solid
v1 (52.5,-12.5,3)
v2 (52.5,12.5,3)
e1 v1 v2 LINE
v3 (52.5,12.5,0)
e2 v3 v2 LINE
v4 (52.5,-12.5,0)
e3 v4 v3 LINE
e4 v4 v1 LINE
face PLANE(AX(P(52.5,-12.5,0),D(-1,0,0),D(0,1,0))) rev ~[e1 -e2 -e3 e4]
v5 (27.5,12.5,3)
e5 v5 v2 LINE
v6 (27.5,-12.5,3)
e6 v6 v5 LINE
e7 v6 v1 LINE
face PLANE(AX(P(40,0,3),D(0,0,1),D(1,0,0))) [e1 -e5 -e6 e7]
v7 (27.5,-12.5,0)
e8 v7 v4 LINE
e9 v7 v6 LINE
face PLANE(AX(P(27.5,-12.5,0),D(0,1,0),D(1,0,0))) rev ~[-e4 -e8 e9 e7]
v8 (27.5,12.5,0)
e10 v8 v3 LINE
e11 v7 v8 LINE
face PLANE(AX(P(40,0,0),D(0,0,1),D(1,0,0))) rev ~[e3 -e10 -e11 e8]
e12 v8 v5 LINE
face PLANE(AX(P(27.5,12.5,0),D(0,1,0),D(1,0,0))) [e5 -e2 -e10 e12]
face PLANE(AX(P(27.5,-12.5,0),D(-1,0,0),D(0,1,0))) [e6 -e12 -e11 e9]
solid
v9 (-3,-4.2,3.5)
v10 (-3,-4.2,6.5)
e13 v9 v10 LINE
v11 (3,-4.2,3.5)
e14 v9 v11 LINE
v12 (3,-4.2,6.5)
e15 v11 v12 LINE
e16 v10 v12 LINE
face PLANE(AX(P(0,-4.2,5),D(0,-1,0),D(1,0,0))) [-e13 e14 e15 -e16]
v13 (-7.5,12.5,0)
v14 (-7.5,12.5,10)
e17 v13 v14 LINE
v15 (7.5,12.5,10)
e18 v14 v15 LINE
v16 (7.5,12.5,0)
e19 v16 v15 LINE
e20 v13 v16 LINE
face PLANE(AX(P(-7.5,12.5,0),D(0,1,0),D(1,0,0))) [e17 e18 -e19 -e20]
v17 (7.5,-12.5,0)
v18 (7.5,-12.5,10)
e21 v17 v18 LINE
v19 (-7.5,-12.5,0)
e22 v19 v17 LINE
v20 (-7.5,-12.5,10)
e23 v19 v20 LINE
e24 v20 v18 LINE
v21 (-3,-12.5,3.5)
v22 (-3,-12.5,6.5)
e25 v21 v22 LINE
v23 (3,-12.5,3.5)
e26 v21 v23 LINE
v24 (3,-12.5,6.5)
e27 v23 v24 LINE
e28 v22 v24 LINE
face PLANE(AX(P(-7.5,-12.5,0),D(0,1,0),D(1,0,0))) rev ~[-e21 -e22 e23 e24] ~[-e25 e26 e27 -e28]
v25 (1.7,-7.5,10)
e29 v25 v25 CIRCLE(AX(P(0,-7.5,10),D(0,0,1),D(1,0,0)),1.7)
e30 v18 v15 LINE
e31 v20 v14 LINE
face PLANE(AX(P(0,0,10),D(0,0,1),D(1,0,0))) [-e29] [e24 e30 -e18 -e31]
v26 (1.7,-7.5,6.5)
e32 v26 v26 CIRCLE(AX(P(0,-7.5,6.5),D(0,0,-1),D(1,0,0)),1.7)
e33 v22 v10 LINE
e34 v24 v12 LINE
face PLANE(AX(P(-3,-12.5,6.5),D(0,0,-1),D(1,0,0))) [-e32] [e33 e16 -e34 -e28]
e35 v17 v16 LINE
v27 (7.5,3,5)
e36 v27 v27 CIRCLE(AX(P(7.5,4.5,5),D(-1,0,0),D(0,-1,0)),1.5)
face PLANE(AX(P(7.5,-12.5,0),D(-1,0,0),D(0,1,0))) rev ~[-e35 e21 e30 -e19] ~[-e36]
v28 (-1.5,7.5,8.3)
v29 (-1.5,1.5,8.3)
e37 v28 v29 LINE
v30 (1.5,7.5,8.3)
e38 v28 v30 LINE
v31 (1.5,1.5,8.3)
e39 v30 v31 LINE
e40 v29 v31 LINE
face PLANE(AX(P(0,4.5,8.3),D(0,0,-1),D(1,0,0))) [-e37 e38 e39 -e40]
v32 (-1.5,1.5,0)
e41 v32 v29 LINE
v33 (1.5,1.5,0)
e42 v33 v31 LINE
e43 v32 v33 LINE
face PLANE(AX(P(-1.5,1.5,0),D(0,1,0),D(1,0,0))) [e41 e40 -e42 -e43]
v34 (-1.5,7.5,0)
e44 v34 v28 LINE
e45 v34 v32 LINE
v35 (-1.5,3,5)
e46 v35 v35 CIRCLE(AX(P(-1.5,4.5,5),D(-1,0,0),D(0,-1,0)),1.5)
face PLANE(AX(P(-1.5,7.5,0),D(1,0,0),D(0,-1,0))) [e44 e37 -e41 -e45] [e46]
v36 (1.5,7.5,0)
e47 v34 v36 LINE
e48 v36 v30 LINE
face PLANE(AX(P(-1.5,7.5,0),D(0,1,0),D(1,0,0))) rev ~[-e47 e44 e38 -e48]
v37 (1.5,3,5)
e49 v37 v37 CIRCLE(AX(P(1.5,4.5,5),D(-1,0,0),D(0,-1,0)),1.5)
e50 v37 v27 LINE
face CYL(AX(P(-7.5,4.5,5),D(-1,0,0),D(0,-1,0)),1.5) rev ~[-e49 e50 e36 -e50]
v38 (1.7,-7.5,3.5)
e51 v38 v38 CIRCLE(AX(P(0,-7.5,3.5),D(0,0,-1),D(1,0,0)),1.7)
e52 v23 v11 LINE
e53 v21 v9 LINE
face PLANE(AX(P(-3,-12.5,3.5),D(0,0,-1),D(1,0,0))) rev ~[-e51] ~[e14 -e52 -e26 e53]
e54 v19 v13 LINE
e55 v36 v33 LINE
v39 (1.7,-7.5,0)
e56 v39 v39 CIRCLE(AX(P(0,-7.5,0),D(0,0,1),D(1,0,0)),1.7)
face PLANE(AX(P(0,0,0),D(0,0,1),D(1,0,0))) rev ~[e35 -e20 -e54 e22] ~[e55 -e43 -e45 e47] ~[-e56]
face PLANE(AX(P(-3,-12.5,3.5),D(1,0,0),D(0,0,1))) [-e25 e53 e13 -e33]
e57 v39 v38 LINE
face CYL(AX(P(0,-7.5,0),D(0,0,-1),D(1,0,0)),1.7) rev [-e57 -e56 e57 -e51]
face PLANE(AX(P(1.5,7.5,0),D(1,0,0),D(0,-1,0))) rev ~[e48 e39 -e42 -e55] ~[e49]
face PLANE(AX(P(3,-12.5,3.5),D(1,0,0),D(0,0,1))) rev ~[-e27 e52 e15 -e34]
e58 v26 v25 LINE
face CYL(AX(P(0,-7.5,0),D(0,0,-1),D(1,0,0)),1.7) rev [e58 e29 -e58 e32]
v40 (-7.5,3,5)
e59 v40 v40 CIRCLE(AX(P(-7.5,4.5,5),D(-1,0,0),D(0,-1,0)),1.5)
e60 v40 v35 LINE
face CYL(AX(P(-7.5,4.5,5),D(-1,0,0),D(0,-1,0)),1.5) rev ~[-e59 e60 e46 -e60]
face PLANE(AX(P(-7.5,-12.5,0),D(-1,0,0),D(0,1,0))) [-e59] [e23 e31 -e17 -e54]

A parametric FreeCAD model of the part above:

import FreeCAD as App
import Part
import Sketcher

V = App.Vector


def add_polygon(sketch, points):
    """Adds a closed chain of lines whose ends are joined by coincident constraints."""
    first, n = sketch.GeometryCount, len(points)
    for a, b in zip(points, points[1:] + points[:1]):
        sketch.addGeometry(Part.LineSegment(App.Vector(*a, 0), App.Vector(*b, 0)), False)
    for i in range(n):
        sketch.addConstraint(Sketcher.Constraint("Coincident", first + i, 2, first + (i + 1) % n, 1))

doc = App.newDocument("Part")
body = doc.addObject("PartDesign::Body", "Body")

sketch1 = body.newObject("Sketcher::SketchObject", "Sketch")
sketch1.AttachmentSupport = (doc.getObject("XY_Plane"), [""])
sketch1.MapMode = "FlatFace"
add_polygon(sketch1, [(-7.5, 12.5), (-7.5, -12.5), (7.5, -12.5), (7.5, 12.5)])
sketch1.addGeometry(Part.Circle(V(0, -7.5, 0), V(0, 0, 1), 1.7), False)
sketch1.addConstraint([
    Sketcher.Constraint("Vertical", 0),
    Sketcher.Constraint("Horizontal", 1),
    Sketcher.Constraint("Vertical", 2),
    Sketcher.Constraint("Horizontal", 3),
    Sketcher.Constraint("Symmetric", 0, 2, 2, 2, -1, 1),
    Sketcher.Constraint("PointOnObject", 4, 3, -2),
    Sketcher.Constraint("Diameter", 4, 3.4),
    Sketcher.Constraint("DistanceX", 1, 1, 1, 2, 15.0),
    Sketcher.Constraint("DistanceY", 0, 2, 0, 1, 25.0),
    Sketcher.Constraint("DistanceY", 0, 2, 4, 3, 5.0),
])
pad1 = body.newObject("PartDesign::Pad", "Pad")
pad1.Profile = sketch1
pad1.Length = 10

sketch2 = body.newObject("Sketcher::SketchObject", "Sketch001")
sketch2.AttachmentSupport = (doc.getObject("XZ_Plane"), [""])
sketch2.MapMode = "FlatFace"
sketch2.AttachmentOffset = App.Placement(V(0, 0, 12.5), App.Rotation())
add_polygon(sketch2, [(-3, 6.5), (-3, 3.5), (3, 3.5), (3, 6.5)])
sketch2.addConstraint([
    Sketcher.Constraint("Vertical", 0),
    Sketcher.Constraint("Horizontal", 1),
    Sketcher.Constraint("Vertical", 2),
    Sketcher.Constraint("Horizontal", 3),
    Sketcher.Constraint("DistanceX", 1, 1, 1, 2, 6.0),
    Sketcher.Constraint("DistanceY", 0, 2, 0, 1, 3.0),
    Sketcher.Constraint("DistanceX", 0, 2, -1, 1, 3.0),
    Sketcher.Constraint("DistanceY", -1, 1, 0, 2, 3.5),
])
pocket1 = body.newObject("PartDesign::Pocket", "Pocket")
pocket1.Profile = sketch2
pocket1.Length = 8.3

sketch3 = body.newObject("Sketcher::SketchObject", "Sketch002")
sketch3.AttachmentSupport = (doc.getObject("YZ_Plane"), [""])
sketch3.MapMode = "FlatFace"
sketch3.AttachmentOffset = App.Placement(V(0, 0, -7.5), App.Rotation())
sketch3.addGeometry(Part.Circle(V(4.5, 5, 0), V(0, 0, 1), 1.5), False)
sketch3.addConstraint([
    Sketcher.Constraint("Diameter", 0, 3.0),
    Sketcher.Constraint("DistanceY", -1, 1, 0, 3, 5.0),
    Sketcher.Constraint("DistanceX", -1, 1, 0, 3, 4.5),
])
pocket2 = body.newObject("PartDesign::Pocket", "Pocket001")
pocket2.Profile = sketch3
pocket2.Type = "ThroughAll"
pocket2.Reversed = True

sketch4 = body.newObject("Sketcher::SketchObject", "Sketch003")
sketch4.AttachmentSupport = (doc.getObject("XY_Plane"), [""])
sketch4.MapMode = "FlatFace"
add_polygon(sketch4, [(-1.5, 1.5), (-1.5, 7.5), (1.5, 7.5), (1.5, 1.5)])
sketch4.addConstraint([
    Sketcher.Constraint("Vertical", 0),
    Sketcher.Constraint("Horizontal", 1),
    Sketcher.Constraint("Vertical", 2),
    Sketcher.Constraint("Horizontal", 3),
    Sketcher.Constraint("DistanceX", 1, 1, 1, 2, 3.0),
    Sketcher.Constraint("DistanceY", 0, 1, 0, 2, 6.0),
    Sketcher.Constraint("DistanceX", 0, 2, -1, 1, 1.5),
    Sketcher.Constraint("DistanceY", -1, 1, 0, 2, 7.5),
])
pocket3 = body.newObject("PartDesign::Pocket", "Pocket002")
pocket3.Profile = sketch4
pocket3.Length = 8.3
pocket3.Reversed = True
body2 = doc.addObject("PartDesign::Body", "Body001")

sketch5 = body2.newObject("Sketcher::SketchObject", "Sketch004")
sketch5.AttachmentSupport = (doc.getObject("XY_Plane001"), [""])
sketch5.MapMode = "FlatFace"
add_polygon(sketch5, [(28, 12), (28, -12), (52, -12), (52, 12)])
sketch5.addConstraint([
    Sketcher.Constraint("Vertical", 0),
    Sketcher.Constraint("Horizontal", 1),
    Sketcher.Constraint("Vertical", 2),
    Sketcher.Constraint("Horizontal", 3),
    Sketcher.Constraint("Equal", 3, 0),
    Sketcher.Constraint("DistanceX", 1, 1, 1, 2, 25.0),
    Sketcher.Constraint("DistanceX", -1, 1, 0, 2, 27.5),
    Sketcher.Constraint("DistanceY", 0, 2, -1, 1, 12.5),
])
pad2 = body2.newObject("PartDesign::Pad", "Pad001")
pad2.Profile = sketch5
pad2.Length = 3

doc.recompute()
